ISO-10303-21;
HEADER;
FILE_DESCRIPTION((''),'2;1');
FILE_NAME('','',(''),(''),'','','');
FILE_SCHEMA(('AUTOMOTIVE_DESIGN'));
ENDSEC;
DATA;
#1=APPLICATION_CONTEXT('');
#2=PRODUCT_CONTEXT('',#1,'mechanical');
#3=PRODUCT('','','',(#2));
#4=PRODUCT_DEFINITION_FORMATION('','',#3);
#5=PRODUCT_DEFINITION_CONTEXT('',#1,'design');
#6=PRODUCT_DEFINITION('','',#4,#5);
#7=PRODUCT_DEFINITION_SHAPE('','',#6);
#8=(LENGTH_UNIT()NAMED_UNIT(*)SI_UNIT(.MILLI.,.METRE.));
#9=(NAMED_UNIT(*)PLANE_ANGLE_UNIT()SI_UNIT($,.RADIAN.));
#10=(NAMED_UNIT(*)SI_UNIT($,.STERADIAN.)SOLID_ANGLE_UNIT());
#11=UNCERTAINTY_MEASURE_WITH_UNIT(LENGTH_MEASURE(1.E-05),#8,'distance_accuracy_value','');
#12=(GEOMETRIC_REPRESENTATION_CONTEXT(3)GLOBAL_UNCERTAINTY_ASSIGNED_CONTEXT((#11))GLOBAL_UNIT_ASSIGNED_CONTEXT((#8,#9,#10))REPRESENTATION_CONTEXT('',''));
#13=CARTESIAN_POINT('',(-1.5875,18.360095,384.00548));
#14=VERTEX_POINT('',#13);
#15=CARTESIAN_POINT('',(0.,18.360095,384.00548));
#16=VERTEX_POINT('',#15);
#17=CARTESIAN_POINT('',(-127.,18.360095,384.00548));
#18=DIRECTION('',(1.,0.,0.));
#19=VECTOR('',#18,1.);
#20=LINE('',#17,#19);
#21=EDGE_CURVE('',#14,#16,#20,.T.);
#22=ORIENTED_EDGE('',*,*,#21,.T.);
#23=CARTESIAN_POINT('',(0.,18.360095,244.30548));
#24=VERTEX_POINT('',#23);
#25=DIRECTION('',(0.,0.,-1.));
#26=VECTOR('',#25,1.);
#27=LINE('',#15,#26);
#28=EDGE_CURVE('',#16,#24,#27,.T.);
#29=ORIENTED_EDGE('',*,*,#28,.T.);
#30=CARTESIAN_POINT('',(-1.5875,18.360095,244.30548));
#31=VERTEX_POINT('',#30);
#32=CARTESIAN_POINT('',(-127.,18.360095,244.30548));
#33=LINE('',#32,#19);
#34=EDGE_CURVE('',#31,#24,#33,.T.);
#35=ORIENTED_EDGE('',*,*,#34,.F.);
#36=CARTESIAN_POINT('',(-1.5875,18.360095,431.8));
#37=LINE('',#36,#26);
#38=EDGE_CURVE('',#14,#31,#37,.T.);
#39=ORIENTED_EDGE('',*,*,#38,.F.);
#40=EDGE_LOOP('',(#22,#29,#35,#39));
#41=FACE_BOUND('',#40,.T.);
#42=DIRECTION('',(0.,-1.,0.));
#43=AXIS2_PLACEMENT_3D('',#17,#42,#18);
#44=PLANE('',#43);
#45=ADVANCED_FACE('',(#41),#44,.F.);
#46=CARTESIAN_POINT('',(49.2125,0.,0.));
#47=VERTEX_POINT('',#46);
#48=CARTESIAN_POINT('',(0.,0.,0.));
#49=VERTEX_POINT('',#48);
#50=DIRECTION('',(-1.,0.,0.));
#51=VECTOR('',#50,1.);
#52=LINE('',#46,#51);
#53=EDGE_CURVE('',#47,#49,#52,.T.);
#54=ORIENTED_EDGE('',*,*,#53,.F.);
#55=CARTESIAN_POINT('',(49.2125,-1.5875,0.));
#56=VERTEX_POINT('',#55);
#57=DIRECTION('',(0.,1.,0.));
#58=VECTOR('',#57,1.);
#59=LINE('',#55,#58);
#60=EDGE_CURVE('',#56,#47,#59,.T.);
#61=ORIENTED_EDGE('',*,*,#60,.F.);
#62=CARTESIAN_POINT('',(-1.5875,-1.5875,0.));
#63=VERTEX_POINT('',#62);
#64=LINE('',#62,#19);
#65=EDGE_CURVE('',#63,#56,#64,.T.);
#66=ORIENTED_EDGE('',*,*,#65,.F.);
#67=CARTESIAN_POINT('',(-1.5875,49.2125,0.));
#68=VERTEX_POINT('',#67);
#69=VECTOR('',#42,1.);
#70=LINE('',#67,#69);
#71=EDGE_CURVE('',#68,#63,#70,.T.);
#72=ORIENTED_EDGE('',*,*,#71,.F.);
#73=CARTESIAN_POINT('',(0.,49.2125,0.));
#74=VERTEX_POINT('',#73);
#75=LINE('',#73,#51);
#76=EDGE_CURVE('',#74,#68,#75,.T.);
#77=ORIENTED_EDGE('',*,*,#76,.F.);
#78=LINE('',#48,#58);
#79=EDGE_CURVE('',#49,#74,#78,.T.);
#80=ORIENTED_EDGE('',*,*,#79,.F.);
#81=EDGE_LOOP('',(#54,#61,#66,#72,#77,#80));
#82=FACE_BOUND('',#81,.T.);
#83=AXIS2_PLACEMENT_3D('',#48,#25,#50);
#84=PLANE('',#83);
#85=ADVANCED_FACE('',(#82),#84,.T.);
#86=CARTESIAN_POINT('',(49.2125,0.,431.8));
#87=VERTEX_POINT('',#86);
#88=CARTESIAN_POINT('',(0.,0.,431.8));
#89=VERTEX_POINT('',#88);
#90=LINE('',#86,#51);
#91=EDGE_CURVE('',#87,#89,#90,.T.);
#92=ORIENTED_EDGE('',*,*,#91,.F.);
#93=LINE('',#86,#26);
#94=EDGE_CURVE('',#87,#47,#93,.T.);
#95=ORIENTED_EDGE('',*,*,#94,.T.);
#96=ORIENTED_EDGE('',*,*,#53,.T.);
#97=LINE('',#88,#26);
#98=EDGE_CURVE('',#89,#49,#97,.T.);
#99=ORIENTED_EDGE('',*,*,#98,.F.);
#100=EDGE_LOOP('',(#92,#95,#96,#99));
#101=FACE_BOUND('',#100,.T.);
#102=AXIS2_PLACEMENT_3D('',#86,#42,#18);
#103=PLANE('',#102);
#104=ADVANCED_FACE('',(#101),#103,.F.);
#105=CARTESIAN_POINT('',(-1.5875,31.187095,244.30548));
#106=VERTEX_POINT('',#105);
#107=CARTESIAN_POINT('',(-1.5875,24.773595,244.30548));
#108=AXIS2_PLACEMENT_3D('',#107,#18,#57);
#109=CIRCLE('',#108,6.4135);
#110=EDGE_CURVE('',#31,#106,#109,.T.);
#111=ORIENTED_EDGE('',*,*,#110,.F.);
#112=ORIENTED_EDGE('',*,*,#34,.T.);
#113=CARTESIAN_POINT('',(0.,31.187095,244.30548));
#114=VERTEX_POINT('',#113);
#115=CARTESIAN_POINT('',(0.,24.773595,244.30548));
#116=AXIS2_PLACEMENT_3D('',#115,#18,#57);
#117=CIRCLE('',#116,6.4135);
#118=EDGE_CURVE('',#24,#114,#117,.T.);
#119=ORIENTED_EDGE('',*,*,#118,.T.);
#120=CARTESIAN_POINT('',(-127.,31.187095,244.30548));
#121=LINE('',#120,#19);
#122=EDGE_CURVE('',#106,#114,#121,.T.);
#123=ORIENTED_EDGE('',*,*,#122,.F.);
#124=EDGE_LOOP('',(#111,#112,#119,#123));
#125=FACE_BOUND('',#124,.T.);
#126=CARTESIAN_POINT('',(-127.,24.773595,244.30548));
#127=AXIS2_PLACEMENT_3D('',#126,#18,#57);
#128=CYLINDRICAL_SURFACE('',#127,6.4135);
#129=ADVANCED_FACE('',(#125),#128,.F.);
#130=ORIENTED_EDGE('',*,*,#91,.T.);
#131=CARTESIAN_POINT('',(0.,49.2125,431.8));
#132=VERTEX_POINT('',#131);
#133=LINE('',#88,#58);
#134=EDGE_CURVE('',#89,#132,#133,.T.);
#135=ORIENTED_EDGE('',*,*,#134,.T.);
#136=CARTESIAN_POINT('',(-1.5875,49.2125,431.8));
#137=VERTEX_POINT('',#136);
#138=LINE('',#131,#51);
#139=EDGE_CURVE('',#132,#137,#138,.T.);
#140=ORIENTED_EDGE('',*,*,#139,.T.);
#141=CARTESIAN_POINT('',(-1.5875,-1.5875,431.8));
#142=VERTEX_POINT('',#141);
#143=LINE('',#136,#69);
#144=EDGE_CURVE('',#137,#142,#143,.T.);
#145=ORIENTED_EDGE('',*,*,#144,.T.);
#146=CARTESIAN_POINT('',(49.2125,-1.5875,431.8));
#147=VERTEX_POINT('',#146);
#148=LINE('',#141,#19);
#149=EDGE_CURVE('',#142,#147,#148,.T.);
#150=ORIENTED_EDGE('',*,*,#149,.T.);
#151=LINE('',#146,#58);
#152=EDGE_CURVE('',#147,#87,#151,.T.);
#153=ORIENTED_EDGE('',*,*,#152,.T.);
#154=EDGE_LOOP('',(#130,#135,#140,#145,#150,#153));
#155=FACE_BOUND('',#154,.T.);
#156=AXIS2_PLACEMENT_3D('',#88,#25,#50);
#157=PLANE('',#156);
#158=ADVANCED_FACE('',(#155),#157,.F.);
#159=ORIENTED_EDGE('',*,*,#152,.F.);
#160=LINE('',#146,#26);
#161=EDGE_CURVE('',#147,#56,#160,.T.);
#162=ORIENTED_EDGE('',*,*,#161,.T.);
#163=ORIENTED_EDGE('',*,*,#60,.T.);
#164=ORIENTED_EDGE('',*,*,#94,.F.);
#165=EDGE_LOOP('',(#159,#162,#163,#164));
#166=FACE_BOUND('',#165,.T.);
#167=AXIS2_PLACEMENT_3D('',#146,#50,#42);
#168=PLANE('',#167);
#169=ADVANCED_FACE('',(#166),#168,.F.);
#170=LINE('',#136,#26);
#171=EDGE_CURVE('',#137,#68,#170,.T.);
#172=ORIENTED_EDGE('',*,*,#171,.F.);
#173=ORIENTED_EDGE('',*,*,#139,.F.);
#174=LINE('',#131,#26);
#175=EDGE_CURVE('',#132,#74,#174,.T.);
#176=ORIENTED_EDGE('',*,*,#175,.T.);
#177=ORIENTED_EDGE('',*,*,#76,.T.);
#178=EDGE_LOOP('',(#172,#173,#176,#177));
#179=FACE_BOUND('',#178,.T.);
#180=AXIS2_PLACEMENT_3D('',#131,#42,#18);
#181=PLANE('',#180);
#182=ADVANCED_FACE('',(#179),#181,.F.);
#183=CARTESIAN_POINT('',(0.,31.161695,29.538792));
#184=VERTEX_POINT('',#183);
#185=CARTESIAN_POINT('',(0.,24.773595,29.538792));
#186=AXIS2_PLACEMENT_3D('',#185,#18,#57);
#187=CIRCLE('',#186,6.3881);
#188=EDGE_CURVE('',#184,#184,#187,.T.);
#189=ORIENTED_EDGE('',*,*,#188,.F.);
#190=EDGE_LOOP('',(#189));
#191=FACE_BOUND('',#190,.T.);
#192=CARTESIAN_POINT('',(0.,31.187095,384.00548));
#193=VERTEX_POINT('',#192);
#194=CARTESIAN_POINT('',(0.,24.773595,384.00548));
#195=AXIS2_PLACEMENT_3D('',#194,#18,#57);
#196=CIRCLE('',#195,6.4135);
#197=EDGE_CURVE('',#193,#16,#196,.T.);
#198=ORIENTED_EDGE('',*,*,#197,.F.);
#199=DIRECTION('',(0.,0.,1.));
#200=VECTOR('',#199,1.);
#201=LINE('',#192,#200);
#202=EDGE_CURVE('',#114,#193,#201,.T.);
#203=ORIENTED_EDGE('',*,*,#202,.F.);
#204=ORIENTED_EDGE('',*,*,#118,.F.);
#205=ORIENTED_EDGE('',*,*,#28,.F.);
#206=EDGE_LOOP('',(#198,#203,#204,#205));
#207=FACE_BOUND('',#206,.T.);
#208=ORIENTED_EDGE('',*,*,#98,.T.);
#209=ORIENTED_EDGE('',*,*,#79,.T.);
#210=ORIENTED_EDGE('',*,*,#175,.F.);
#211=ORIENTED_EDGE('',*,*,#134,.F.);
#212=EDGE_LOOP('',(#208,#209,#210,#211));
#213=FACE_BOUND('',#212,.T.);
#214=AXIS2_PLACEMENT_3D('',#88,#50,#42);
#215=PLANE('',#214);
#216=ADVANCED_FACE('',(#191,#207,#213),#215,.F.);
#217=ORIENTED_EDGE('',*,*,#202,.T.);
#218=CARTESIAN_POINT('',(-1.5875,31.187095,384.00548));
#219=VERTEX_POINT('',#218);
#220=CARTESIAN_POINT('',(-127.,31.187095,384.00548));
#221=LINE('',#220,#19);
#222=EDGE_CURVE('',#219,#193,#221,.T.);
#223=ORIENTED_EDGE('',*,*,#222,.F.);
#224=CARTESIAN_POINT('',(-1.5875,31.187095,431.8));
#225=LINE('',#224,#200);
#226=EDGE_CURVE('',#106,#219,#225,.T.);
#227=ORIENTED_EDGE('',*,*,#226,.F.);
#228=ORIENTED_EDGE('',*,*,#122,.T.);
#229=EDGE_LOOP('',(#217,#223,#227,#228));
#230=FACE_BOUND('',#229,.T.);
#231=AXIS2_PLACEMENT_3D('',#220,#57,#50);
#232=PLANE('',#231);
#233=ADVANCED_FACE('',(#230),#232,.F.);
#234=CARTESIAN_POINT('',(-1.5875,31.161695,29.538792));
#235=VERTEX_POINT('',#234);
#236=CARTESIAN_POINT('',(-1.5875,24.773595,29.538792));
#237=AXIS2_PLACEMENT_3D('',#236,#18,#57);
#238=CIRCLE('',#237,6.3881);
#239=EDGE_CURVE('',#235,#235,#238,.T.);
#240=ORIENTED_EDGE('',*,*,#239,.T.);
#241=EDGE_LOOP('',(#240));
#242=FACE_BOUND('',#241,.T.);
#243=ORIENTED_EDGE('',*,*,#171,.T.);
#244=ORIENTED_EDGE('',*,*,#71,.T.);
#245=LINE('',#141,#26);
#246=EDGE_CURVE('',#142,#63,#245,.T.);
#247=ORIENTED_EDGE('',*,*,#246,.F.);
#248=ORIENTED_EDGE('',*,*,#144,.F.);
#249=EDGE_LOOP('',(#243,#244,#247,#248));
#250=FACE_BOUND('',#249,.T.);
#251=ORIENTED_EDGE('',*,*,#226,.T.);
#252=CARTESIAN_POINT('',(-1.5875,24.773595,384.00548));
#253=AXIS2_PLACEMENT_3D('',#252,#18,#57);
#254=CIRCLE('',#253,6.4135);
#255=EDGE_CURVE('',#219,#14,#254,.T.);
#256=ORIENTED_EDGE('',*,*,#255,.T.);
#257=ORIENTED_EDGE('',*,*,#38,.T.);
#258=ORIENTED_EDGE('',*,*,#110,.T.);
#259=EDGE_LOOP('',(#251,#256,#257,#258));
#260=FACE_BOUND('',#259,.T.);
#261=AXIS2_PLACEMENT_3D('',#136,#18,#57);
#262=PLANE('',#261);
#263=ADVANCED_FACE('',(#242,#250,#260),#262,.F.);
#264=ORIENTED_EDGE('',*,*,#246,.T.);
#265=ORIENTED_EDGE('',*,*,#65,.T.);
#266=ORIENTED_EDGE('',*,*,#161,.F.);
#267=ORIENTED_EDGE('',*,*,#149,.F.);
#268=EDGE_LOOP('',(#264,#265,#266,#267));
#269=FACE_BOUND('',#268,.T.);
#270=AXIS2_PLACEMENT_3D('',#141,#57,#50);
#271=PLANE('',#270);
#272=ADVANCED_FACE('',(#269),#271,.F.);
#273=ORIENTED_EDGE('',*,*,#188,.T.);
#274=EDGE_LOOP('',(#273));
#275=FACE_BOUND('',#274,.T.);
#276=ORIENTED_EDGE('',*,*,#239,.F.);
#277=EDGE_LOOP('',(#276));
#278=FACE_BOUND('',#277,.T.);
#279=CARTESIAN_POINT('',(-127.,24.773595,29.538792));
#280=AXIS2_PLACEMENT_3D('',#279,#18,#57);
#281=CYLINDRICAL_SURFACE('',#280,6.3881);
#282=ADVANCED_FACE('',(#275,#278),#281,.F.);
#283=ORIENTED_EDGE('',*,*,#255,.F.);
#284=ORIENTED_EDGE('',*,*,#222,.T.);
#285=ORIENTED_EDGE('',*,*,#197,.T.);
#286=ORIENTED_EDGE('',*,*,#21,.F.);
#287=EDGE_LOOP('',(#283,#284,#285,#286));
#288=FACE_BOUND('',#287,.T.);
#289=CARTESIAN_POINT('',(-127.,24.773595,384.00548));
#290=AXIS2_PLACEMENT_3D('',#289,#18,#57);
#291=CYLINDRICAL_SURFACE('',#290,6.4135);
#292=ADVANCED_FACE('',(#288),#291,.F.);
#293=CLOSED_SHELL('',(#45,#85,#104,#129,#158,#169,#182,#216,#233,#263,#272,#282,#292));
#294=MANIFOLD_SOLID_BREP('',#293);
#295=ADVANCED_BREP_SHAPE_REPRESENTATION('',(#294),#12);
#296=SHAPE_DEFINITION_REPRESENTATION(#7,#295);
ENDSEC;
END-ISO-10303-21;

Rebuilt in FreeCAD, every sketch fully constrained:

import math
import FreeCAD as App
import Part
import Sketcher
from FreeCAD import Vector
Q = App.Units.Quantity


def add_polygon(sketch, points):
    """Adds a closed chain of lines whose ends are joined by coincident constraints."""
    first, n = sketch.GeometryCount, len(points)
    for a, b in zip(points, points[1:] + points[:1]):
        sketch.addGeometry(Part.LineSegment(App.Vector(*a, 0), App.Vector(*b, 0)), False)
    for i in range(n):
        sketch.addConstraint(Sketcher.Constraint("Coincident", first + i, 2, first + (i + 1) % n, 1))

doc = App.newDocument("Part")
body = doc.addObject("PartDesign::Body", "Body")

sketch1 = body.newObject("Sketcher::SketchObject", "Sketch")
sketch1.AttachmentSupport = (doc.getObject("XY_Plane"), [""])
sketch1.MapMode = "FlatFace"
add_polygon(sketch1, [(0, 0), (0, 49.2), (-1.6, 49.2), (-1.6, -1.6), (49.2, -1.6), (49.2, 0)])
sketch1.addConstraint([
    Sketcher.Constraint("Vertical", 0),
    Sketcher.Constraint("Horizontal", 1),
    Sketcher.Constraint("Vertical", 2),
    Sketcher.Constraint("Horizontal", 3),
    Sketcher.Constraint("Vertical", 4),
    Sketcher.Constraint("Horizontal", 5),
    Sketcher.Constraint("Coincident", 5, 2, -1, 1),
    Sketcher.Constraint("Equal", 5, 0),
    Sketcher.Constraint("Equal", 3, 2),
    Sketcher.Constraint("DistanceX", 3, 1, 3, 2, Q("2 in")),
    Sketcher.Constraint("DistanceX", 1, 2, 1, 1, Q("0.0625 in")),
])
pad1 = body.newObject("PartDesign::Pad", "Pad")
pad1.Profile = sketch1
pad1.Length = Q("17 in")

sketch2 = body.newObject("Sketcher::SketchObject", "Sketch001")
sketch2.AttachmentSupport = (doc.getObject("YZ_Plane"), [""])
sketch2.MapMode = "FlatFace"
sketch2.addGeometry([
    Part.LineSegment(Vector(31, 244, 0), Vector(31, 384, 0)),
    Part.ArcOfCircle(Part.Circle(Vector(25, 384, 0), Vector(0, 0, 1), 6), math.radians(0), math.radians(180)),
    Part.LineSegment(Vector(18, 384, 0), Vector(18, 244, 0)),
    Part.ArcOfCircle(Part.Circle(Vector(25, 244, 0), Vector(0, 0, 1), 6), math.radians(180), math.radians(360)),
], False)
sketch2.addConstraint([
    Sketcher.Constraint("Tangent", 0, 2, 1, 1),
    Sketcher.Constraint("Tangent", 1, 2, 2, 1),
    Sketcher.Constraint("Tangent", 2, 2, 3, 1),
    Sketcher.Constraint("Tangent", 3, 2, 0, 1),
    Sketcher.Constraint("Vertical", 0),
    Sketcher.Constraint("Vertical", 2),
    Sketcher.Constraint("DistanceY", 0, 1, 0, 2, Q("5.5 in")),
    Sketcher.Constraint("Radius", 1, Q("0.2525 in")),
    Sketcher.Constraint("DistanceY", -1, 1, 1, 3, Q("384.00548 mm")),
    Sketcher.Constraint("DistanceX", -1, 1, 1, 3, Q("24.773595 mm")),
])
pocket1 = body.newObject("PartDesign::Pocket", "Pocket")
pocket1.Profile = sketch2
pocket1.Length = Q("5 in")

sketch3 = body.newObject("Sketcher::SketchObject", "Sketch002")
sketch3.AttachmentSupport = (doc.getObject("YZ_Plane"), [""])
sketch3.MapMode = "FlatFace"
sketch3.addGeometry(Part.Circle(Vector(25, 30, 0), Vector(0, 0, 1), 6), False)
sketch3.addConstraint([
    Sketcher.Constraint("Diameter", 0, Q("0.503 in")),
    Sketcher.Constraint("DistanceX", -1, 1, 0, 3, Q("24.773595 mm")),
    Sketcher.Constraint("DistanceY", -1, 1, 0, 3, Q("29.538792 mm")),
])
pocket2 = body.newObject("PartDesign::Pocket", "Pocket001")
pocket2.Profile = sketch3
pocket2.Length = Q("5 in")

doc.recompute()
